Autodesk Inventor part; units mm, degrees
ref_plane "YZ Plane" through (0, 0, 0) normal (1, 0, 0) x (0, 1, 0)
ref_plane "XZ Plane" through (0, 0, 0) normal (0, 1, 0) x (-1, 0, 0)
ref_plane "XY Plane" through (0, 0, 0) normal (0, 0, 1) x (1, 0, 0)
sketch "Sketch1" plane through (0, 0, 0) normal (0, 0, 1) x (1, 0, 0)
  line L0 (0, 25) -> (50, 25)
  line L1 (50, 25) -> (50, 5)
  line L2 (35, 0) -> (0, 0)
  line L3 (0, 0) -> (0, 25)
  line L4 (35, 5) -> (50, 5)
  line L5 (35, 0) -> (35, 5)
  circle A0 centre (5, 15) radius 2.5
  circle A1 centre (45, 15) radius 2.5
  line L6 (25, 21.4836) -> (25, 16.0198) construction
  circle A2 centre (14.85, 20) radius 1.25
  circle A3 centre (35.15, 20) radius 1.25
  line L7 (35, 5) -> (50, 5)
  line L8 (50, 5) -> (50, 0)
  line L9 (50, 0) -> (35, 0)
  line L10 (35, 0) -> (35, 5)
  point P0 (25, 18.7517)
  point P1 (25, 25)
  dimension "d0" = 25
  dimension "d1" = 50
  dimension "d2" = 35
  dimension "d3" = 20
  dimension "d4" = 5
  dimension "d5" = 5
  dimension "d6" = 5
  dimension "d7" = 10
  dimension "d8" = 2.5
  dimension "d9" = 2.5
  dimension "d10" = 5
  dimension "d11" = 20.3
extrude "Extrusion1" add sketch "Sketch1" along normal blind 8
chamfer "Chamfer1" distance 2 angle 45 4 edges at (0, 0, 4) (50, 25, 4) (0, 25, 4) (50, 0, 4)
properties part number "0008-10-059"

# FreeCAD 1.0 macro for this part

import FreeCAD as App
import Part
import Sketcher
Q = App.Units.Quantity


def edges_at(feature, points):
    """Names of the edges that pass closest to the given points."""
    edges = feature.Shape.Edges
    near = lambda p: min(range(len(edges)), key=lambda i: edges[i].distToShape(Part.Vertex(*p))[0])
    return sorted({f"Edge{near(p) + 1}" for p in points})

doc = App.newDocument("Part")
body = doc.addObject("PartDesign::Body", "Body")

# Sketch on XY plane
sketch1 = body.newObject("Sketcher::SketchObject", "Sketch")
sketch1.AttachmentSupport = (doc.getObject("XY_Plane"), [""])
sketch1.MapMode = "FlatFace"
sketch1.addGeometry(Part.LineSegment(App.Vector(50, 25, 0), App.Vector(0, 25, 0)), False)
sketch1.addGeometry(Part.LineSegment(App.Vector(0, 25, 0), App.Vector(0, 0, 0)), False)
sketch1.addGeometry(Part.LineSegment(App.Vector(0, 0, 0), App.Vector(50, 0, 0)), False)
sketch1.addGeometry(Part.LineSegment(App.Vector(50, 0, 0), App.Vector(50, 25, 0)), False)
sketch1.addGeometry(Part.Circle(App.Vector(5, 15, 0), App.Vector(0, 0, 1), 2.5), False)
sketch1.addGeometry(Part.Circle(App.Vector(14.85, 20, 0), App.Vector(0, 0, 1), 1.25), False)
sketch1.addGeometry(Part.Circle(App.Vector(45, 15, 0), App.Vector(0, 0, 1), 2.5), False)
sketch1.addGeometry(Part.Circle(App.Vector(35.15, 20, 0), App.Vector(0, 0, 1), 1.25), False)
sketch1.addConstraint(Sketcher.Constraint("Coincident", 0, 2, 1, 1))
sketch1.addConstraint(Sketcher.Constraint("Coincident", 1, 2, 2, 1))
sketch1.addConstraint(Sketcher.Constraint("Coincident", 2, 2, 3, 1))
sketch1.addConstraint(Sketcher.Constraint("Coincident", 3, 2, 0, 1))
sketch1.addConstraint(Sketcher.Constraint("Horizontal", 0))
sketch1.addConstraint(Sketcher.Constraint("Vertical", 1))
sketch1.addConstraint(Sketcher.Constraint("Horizontal", 2))
sketch1.addConstraint(Sketcher.Constraint("Vertical", 3))
sketch1.addConstraint(Sketcher.Constraint("Coincident", 1, 2, -1, 1))
sketch1.addConstraint(Sketcher.Constraint("Equal", 4, 6))
sketch1.addConstraint(Sketcher.Constraint("Equal", 5, 7))
sketch1.addConstraint(Sketcher.Constraint("Horizontal", 4, 3, 6, 3))
sketch1.addConstraint(Sketcher.Constraint("Horizontal", 5, 3, 7, 3))
sketch1.addConstraint(Sketcher.Constraint("Diameter", 4, Q("5 mm")))
sketch1.addConstraint(Sketcher.Constraint("Diameter", 5, Q("2.5 mm")))
sketch1.addConstraint(Sketcher.Constraint("DistanceX", 0, 2, 0, 1, Q("50 mm")))
sketch1.addConstraint(Sketcher.Constraint("DistanceY", 1, 2, 1, 1, Q("25 mm")))
sketch1.addConstraint(Sketcher.Constraint("DistanceX", -1, 1, 4, 3, Q("5 mm")))
sketch1.addConstraint(Sketcher.Constraint("DistanceY", -1, 1, 5, 3, Q("20 mm")))
sketch1.addConstraint(Sketcher.Constraint("DistanceY", 4, 3, 5, 3, Q("5 mm")))
sketch1.addConstraint(Sketcher.Constraint("DistanceX", 6, 3, 2, 2, Q("5 mm")))
sketch1.addConstraint(Sketcher.Constraint("DistanceX", 5, 3, 7, 3, Q("20.3 mm")))
sketch1.addConstraint(Sketcher.Constraint("DistanceX", -1, 1, 5, 3, Q("14.85 mm")))
pad1 = body.newObject("PartDesign::Pad", "Pad")
pad1.Profile = sketch1
pad1.Length = 8
doc.recompute()

chamfer = body.newObject("PartDesign::Chamfer", "Chamfer")
chamfer.Base = (pad1, edges_at(pad1, [
    (0, 0, 4),
    (50, 25, 4),
    (0, 25, 4),
    (50, 0, 4),
]))
chamfer.Size = 2

doc.recompute()
